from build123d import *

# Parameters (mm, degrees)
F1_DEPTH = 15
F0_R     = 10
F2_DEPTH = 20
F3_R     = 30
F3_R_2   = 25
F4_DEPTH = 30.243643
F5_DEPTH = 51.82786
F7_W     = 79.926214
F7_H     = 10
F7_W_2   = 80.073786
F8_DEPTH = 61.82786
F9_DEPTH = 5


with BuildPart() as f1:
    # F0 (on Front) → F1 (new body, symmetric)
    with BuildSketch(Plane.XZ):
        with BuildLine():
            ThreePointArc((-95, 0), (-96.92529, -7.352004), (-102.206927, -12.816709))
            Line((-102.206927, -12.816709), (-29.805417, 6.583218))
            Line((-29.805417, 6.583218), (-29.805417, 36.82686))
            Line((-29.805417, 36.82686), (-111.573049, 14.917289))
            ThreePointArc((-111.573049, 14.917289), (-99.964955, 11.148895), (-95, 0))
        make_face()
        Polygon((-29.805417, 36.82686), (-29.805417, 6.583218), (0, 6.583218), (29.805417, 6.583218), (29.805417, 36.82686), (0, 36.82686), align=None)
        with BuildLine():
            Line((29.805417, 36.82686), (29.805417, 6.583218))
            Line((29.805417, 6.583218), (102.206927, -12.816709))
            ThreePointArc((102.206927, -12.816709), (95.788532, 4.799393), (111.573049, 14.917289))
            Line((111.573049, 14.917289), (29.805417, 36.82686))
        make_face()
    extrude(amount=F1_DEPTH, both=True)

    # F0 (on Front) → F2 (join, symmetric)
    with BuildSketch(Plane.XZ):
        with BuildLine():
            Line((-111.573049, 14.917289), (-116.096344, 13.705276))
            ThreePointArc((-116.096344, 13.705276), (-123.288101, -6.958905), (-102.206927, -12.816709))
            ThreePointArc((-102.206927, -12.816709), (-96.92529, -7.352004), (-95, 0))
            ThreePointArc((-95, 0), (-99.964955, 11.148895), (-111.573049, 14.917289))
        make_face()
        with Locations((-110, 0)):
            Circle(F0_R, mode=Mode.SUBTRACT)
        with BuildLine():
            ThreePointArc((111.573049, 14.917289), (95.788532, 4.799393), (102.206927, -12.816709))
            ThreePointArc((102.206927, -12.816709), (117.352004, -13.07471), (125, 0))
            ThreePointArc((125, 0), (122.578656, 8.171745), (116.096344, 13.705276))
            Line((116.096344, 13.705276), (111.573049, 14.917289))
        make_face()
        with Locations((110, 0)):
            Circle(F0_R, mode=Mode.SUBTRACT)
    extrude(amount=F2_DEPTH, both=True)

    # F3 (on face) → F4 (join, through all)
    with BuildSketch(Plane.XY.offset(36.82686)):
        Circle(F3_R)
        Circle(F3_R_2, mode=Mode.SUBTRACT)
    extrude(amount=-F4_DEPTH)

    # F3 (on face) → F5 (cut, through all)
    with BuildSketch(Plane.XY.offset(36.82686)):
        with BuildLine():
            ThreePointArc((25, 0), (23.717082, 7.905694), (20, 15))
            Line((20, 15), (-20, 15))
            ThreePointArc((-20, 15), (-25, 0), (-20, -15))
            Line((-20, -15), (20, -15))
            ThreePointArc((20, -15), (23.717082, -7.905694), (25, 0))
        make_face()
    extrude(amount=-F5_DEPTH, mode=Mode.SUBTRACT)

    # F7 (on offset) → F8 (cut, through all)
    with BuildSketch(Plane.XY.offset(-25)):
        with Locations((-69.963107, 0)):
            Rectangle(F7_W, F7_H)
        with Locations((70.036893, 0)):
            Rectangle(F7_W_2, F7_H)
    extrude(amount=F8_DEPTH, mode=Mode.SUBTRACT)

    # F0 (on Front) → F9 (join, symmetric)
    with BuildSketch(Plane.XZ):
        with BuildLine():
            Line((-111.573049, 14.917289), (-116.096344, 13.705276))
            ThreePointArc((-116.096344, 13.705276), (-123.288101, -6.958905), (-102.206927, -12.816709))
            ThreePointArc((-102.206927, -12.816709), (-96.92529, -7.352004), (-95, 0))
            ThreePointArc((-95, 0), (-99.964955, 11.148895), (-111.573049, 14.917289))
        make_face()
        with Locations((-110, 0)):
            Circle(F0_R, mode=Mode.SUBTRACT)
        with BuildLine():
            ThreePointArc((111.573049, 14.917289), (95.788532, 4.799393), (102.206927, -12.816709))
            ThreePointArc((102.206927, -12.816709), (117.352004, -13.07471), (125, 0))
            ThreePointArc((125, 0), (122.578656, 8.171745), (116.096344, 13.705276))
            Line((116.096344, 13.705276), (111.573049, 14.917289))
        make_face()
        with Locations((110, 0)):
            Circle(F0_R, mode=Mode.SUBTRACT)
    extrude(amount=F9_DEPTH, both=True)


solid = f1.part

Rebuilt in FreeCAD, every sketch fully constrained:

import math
import FreeCAD as App
import Part
import Sketcher
from FreeCAD import Vector
Q = App.Units.Quantity


def add_polygon(sketch, points):
    """Adds a closed chain of lines whose ends are joined by coincident constraints."""
    first, n = sketch.GeometryCount, len(points)
    for a, b in zip(points, points[1:] + points[:1]):
        sketch.addGeometry(Part.LineSegment(App.Vector(*a, 0), App.Vector(*b, 0)), False)
    for i in range(n):
        sketch.addConstraint(Sketcher.Constraint("Coincident", first + i, 2, first + (i + 1) % n, 1))

doc = App.newDocument("Part")
body = doc.addObject("PartDesign::Body", "Body")

# Sketch on XZ plane
sketch1 = body.newObject("Sketcher::SketchObject", "Sketch")
sketch1.AttachmentSupport = (doc.getObject("XZ_Plane"), [""])
sketch1.MapMode = "FlatFace"
sketch1.addGeometry([
    Part.ArcOfCircle(Part.Circle(Vector(-110.000001, 0, 0), Vector(0, 0, 1), 15.000001), math.radians(-58.698718), math.radians(0)),  # 0
    Part.LineSegment(Vector(-102.206927, -12.816709, 0), Vector(-29.805417, 6.583218, 0)),  # 1
    Part.LineSegment(Vector(-29.805417, 6.583218, 0), Vector(29.805417, 6.583218, 0)),  # 2
    Part.LineSegment(Vector(29.805417, 6.583218, 0), Vector(102.206927, -12.816709, 0)),  # 3
    Part.ArcOfCircle(Part.Circle(Vector(110, 0, 0), Vector(0, 0, 1), 15), math.radians(83.980328), math.radians(238.698719)),  # 4
    Part.LineSegment(Vector(111.573049, 14.917289, 0), Vector(29.805417, 36.82686, 0)),  # 5
    Part.LineSegment(Vector(29.805417, 36.82686, 0), Vector(-29.805417, 36.82686, 0)),  # 6
    Part.LineSegment(Vector(-29.805417, 36.82686, 0), Vector(-111.573049, 14.917289, 0)),  # 7
    Part.ArcOfCircle(Part.Circle(Vector(-110.000001, -0.000001, 0), Vector(0, 0, 1), 15.000001), math.radians(0.000003), math.radians(96.019671)),  # 8
], False)
sketch1.addConstraint([
    Sketcher.Constraint("Coincident", 0, 1, 1, 1),
    Sketcher.Constraint("Coincident", 1, 2, 2, 1),
    Sketcher.Constraint("Coincident", 2, 2, 3, 1),
    Sketcher.Constraint("Coincident", 3, 2, 4, 2),
    Sketcher.Constraint("Coincident", 4, 1, 5, 1),
    Sketcher.Constraint("Coincident", 5, 2, 6, 1),
    Sketcher.Constraint("Coincident", 6, 2, 7, 1),
    Sketcher.Constraint("Coincident", 7, 2, 8, 2),
    Sketcher.Constraint("Tangent", 8, 1, 0, 2),
    Sketcher.Constraint("Horizontal", 2),
    Sketcher.Constraint("Horizontal", 6),
    Sketcher.Constraint("Equal", 0, 4),
    Sketcher.Constraint("Equal", 4, 8),
    Sketcher.Constraint("Symmetric", 0, 3, 4, 3, -1, 1),
    Sketcher.Constraint("Symmetric", 0, 1, 3, 2, -2),
    Sketcher.Constraint("PointOnObject", 8, 1, -1),
    Sketcher.Constraint("Parallel", 3, 5),
    Sketcher.Constraint("Parallel", 1, 7),
    Sketcher.Constraint("Horizontal", 4, 1, 7, 2),
    Sketcher.Constraint("Vertical", 2, 2, 5, 2),
    Sketcher.Constraint("Vertical", 1, 2, 6, 2),
    Sketcher.Constraint("Radius", 0, Q("15.000001 mm")),
    Sketcher.Constraint("Angle", 1, Q("15.000001 deg")),
    Sketcher.Constraint("DistanceX", 0, 3, -1, 1, Q("110.000001 mm")),
    Sketcher.Constraint("Distance", 1, Q("74.955559 mm")),
    Sketcher.Constraint("Distance", 5, Q("84.652082 mm")),
    Sketcher.Constraint("DistanceX", 2, 1, 2, 2, Q("59.610834 mm")),
])
pad1 = body.newObject("PartDesign::Pad", "Pad")
pad1.Profile = sketch1
pad1.Length = 30
pad1.Midplane = True

# Sketch on XZ plane
sketch2 = body.newObject("Sketcher::SketchObject", "Sketch001")
sketch2.AttachmentSupport = (doc.getObject("XZ_Plane"), [""])
sketch2.MapMode = "FlatFace"
sketch2.addGeometry([
    Part.LineSegment(Vector(-111.573049, 14.917289, 0), Vector(-116.096344, 13.705276, 0)),  # 0
    Part.ArcOfCircle(Part.Circle(Vector(-109.999999, 0, 0), Vector(0, 0, 1), 15), math.radians(113.980329), math.radians(301.301276)),  # 1
    Part.ArcOfCircle(Part.Circle(Vector(-110.000001, 0, 0), Vector(0, 0, 1), 15.000001), math.radians(-58.698718), math.radians(0)),  # 2
    Part.ArcOfCircle(Part.Circle(Vector(-110.000001, -0.000001, 0), Vector(0, 0, 1), 15.000001), math.radians(0.000003), math.radians(96.019671)),  # 3
    Part.Circle(Vector(-110, 0, 0), Vector(0, 0, 1), 10),  # 4
    Part.ArcOfCircle(Part.Circle(Vector(110, 0, 0), Vector(0, 0, 1), 15), math.radians(83.980328), math.radians(238.698719)),  # 5
    Part.ArcOfCircle(Part.Circle(Vector(110, 0, 0), Vector(0, 0, 1), 15), math.radians(-121.301277), math.radians(0)),  # 6
    Part.ArcOfCircle(Part.Circle(Vector(110, 0, 0), Vector(0, 0, 1), 15), math.radians(-0.000001), math.radians(66.019675)),  # 7
    Part.LineSegment(Vector(116.096344, 13.705276, 0), Vector(111.573049, 14.917289, 0)),  # 8
    Part.Circle(Vector(110, 0, 0), Vector(0, 0, 1), 10),  # 9
], False)
sketch2.addConstraint([
    Sketcher.Constraint("Coincident", 0, 2, 1, 1),
    Sketcher.Constraint("Tangent", 1, 2, 2, 1),
    Sketcher.Constraint("Tangent", 2, 2, 3, 1),
    Sketcher.Constraint("Coincident", 3, 2, 0, 1),
    Sketcher.Constraint("Tangent", 5, 2, 6, 1),
    Sketcher.Constraint("Tangent", 6, 2, 7, 1),
    Sketcher.Constraint("Coincident", 7, 2, 8, 1),
    Sketcher.Constraint("Coincident", 8, 2, 5, 1),
    Sketcher.Constraint("Coincident", 3, 3, 1, 3),
    Sketcher.Constraint("Coincident", 4, 3, 1, 3),
    Sketcher.Constraint("Coincident", 7, 3, 5, 3),
    Sketcher.Constraint("Coincident", 9, 3, 5, 3),
    Sketcher.Constraint("Equal", 3, 5),
    Sketcher.Constraint("Equal", 4, 9),
    Sketcher.Constraint("Symmetric", 1, 3, 5, 3, -1, 1),
    Sketcher.Constraint("Symmetric", 1, 2, 5, 2, -2),
    Sketcher.Constraint("PointOnObject", 2, 2, -1),
    Sketcher.Constraint("PointOnObject", 6, 2, -1),
    Sketcher.Constraint("Horizontal", 0, 2, 7, 2),
    Sketcher.Constraint("Horizontal", 3, 2, 8, 2),
    Sketcher.Constraint("Diameter", 4, Q("20 mm")),
    Sketcher.Constraint("Radius", 1, Q("15 mm")),
    Sketcher.Constraint("Angle", 0, Q("-165.000003 deg")),
    Sketcher.Constraint("DistanceX", 1, 3, -1, 1, Q("109.999999 mm")),
    Sketcher.Constraint("Distance", 0, Q("4.68286 mm")),
    Sketcher.Constraint("DistanceY", 1, 2, -1, 1, Q("12.816709 mm")),
])
pad2 = body.newObject("PartDesign::Pad", "Pad001")
pad2.Profile = sketch2
pad2.Length = 40
pad2.Midplane = True

# Sketch on XY plane
sketch3 = body.newObject("Sketcher::SketchObject", "Sketch002")
sketch3.AttachmentSupport = (doc.getObject("XY_Plane"), [""])
sketch3.MapMode = "FlatFace"
sketch3.AttachmentOffset = App.Placement(Vector(0, 0, 36.82686), App.Rotation())
sketch3.addGeometry([
    Part.Circle(Vector(0, 0, 0), Vector(0, 0, 1), 30),
    Part.Circle(Vector(0, 0, 0), Vector(0, 0, 1), 25),
], False)
sketch3.addConstraint([
    Sketcher.Constraint("Coincident", 0, 3, -1, 1),
    Sketcher.Constraint("Coincident", 1, 3, -1, 1),
    Sketcher.Constraint("Diameter", 0, Q("60 mm")),
    Sketcher.Constraint("Diameter", 1, Q("50 mm")),
])
pad3 = body.newObject("PartDesign::Pad", "Pad002")
pad3.Profile = sketch3
pad3.Type = "UpToLast"
pad3.Reversed = True

# Sketch on XY plane
sketch4 = body.newObject("Sketcher::SketchObject", "Sketch003")
sketch4.AttachmentSupport = (doc.getObject("XY_Plane"), [""])
sketch4.MapMode = "FlatFace"
sketch4.AttachmentOffset = App.Placement(Vector(0, 0, 36.82686), App.Rotation())
sketch4.addGeometry([
    Part.ArcOfCircle(Part.Circle(Vector(-0.000009, -0.000003, 0), Vector(0, 0, 1), 25.000009), math.radians(0.000007), math.radians(36.869891)),  # 0
    Part.LineSegment(Vector(20, 15, 0), Vector(-20, 15, 0)),  # 1
    Part.ArcOfCircle(Part.Circle(Vector(0, 0, 0), Vector(0, 0, 1), 25), math.radians(143.130102), math.radians(216.869898)),  # 2
    Part.LineSegment(Vector(-20, -15, 0), Vector(20, -15, 0)),  # 3
    Part.ArcOfCircle(Part.Circle(Vector(-0.000009, 0.000003, 0), Vector(0, 0, 1), 25.000009), math.radians(-36.869891), math.radians(-0.000007)),  # 4
], False)
sketch4.addConstraint([
    Sketcher.Constraint("Coincident", 0, 2, 1, 1),
    Sketcher.Constraint("Coincident", 1, 2, 2, 1),
    Sketcher.Constraint("Coincident", 2, 2, 3, 1),
    Sketcher.Constraint("Coincident", 3, 2, 4, 1),
    Sketcher.Constraint("Tangent", 4, 2, 0, 1),
    Sketcher.Constraint("Horizontal", 1),
    Sketcher.Constraint("Horizontal", 3),
    Sketcher.Constraint("Coincident", 0, 3, -1, 1),
    Sketcher.Constraint("Coincident", 2, 3, -1, 1),
    Sketcher.Constraint("Equal", 0, 4),
    Sketcher.Constraint("Symmetric", 0, 2, 2, 2, -1, 1),
    Sketcher.Constraint("PointOnObject", 4, 2, -1),
    Sketcher.Constraint("Radius", 2, Q("25 mm")),
    Sketcher.Constraint("DistanceX", 1, 2, 1, 1, Q("40 mm")),
])
pocket1 = body.newObject("PartDesign::Pocket", "Pocket")
pocket1.Profile = sketch4
pocket1.Type = "ThroughAll"

# Sketch on XY plane
sketch5 = body.newObject("Sketcher::SketchObject", "Sketch004")
sketch5.AttachmentSupport = (doc.getObject("XY_Plane"), [""])
sketch5.MapMode = "FlatFace"
sketch5.AttachmentOffset = App.Placement(Vector(0, 0, -25), App.Rotation())
add_polygon(sketch5, [(-109.926214, 5), (-109.926214, -5), (-30, -5), (-30, 5)])  # lines 0-3
add_polygon(sketch5, [(30, 5), (30, -5), (110.073786, -5), (110.073786, 5)])  # lines 4-7
sketch5.addConstraint([
    Sketcher.Constraint("Vertical", 0),
    Sketcher.Constraint("Horizontal", 1),
    Sketcher.Constraint("Vertical", 2),
    Sketcher.Constraint("Horizontal", 3),
    Sketcher.Constraint("Vertical", 4),
    Sketcher.Constraint("Horizontal", 5),
    Sketcher.Constraint("Vertical", 6),
    Sketcher.Constraint("Horizontal", 7),
    Sketcher.Constraint("Symmetric", 2, 2, 4, 2, -1, 1),
    Sketcher.Constraint("Horizontal", 1, 2, 4, 2),
    Sketcher.Constraint("Horizontal", 3, 2, 6, 2),
    Sketcher.Constraint("DistanceY", 0, 2, 0, 1, Q("10 mm")),
    Sketcher.Constraint("DistanceX", 1, 2, -1, 1, Q("30 mm")),
    Sketcher.Constraint("DistanceX", 0, 2, 5, 2, Q("220 mm")),
    Sketcher.Constraint("DistanceX", 1, 1, 1, 2, Q("79.926214 mm")),
])
pocket2 = body.newObject("PartDesign::Pocket", "Pocket001")
pocket2.Profile = sketch5
pocket2.Type = "ThroughAll"
pocket2.Reversed = True

# Sketch on XZ plane
sketch6 = body.newObject("Sketcher::SketchObject", "Sketch005")
sketch6.AttachmentSupport = (doc.getObject("XZ_Plane"), [""])
sketch6.MapMode = "FlatFace"
sketch6.addGeometry([
    Part.LineSegment(Vector(-111.573049, 14.917289, 0), Vector(-116.096344, 13.705276, 0)),  # 0
    Part.ArcOfCircle(Part.Circle(Vector(-109.999999, 0, 0), Vector(0, 0, 1), 15), math.radians(113.980329), math.radians(301.301276)),  # 1
    Part.ArcOfCircle(Part.Circle(Vector(-110.000001, 0, 0), Vector(0, 0, 1), 15.000001), math.radians(-58.698718), math.radians(0)),  # 2
    Part.ArcOfCircle(Part.Circle(Vector(-110.000001, -0.000001, 0), Vector(0, 0, 1), 15.000001), math.radians(0.000003), math.radians(96.019671)),  # 3
    Part.Circle(Vector(-110, 0, 0), Vector(0, 0, 1), 10),  # 4
    Part.ArcOfCircle(Part.Circle(Vector(110, 0, 0), Vector(0, 0, 1), 15), math.radians(83.980328), math.radians(238.698719)),  # 5
    Part.ArcOfCircle(Part.Circle(Vector(110, 0, 0), Vector(0, 0, 1), 15), math.radians(-121.301277), math.radians(0)),  # 6
    Part.ArcOfCircle(Part.Circle(Vector(110, 0, 0), Vector(0, 0, 1), 15), math.radians(-0.000001), math.radians(66.019675)),  # 7
    Part.LineSegment(Vector(116.096344, 13.705276, 0), Vector(111.573049, 14.917289, 0)),  # 8
    Part.Circle(Vector(110, 0, 0), Vector(0, 0, 1), 10),  # 9
], False)
sketch6.addConstraint([
    Sketcher.Constraint("Coincident", 0, 2, 1, 1),
    Sketcher.Constraint("Tangent", 1, 2, 2, 1),
    Sketcher.Constraint("Tangent", 2, 2, 3, 1),
    Sketcher.Constraint("Coincident", 3, 2, 0, 1),
    Sketcher.Constraint("Tangent", 5, 2, 6, 1),
    Sketcher.Constraint("Tangent", 6, 2, 7, 1),
    Sketcher.Constraint("Coincident", 7, 2, 8, 1),
    Sketcher.Constraint("Coincident", 8, 2, 5, 1),
    Sketcher.Constraint("Coincident", 3, 3, 1, 3),
    Sketcher.Constraint("Coincident", 4, 3, 1, 3),
    Sketcher.Constraint("Coincident", 7, 3, 5, 3),
    Sketcher.Constraint("Coincident", 9, 3, 5, 3),
    Sketcher.Constraint("Equal", 3, 5),
    Sketcher.Constraint("Equal", 4, 9),
    Sketcher.Constraint("Symmetric", 1, 3, 5, 3, -1, 1),
    Sketcher.Constraint("Symmetric", 1, 2, 5, 2, -2),
    Sketcher.Constraint("PointOnObject", 2, 2, -1),
    Sketcher.Constraint("PointOnObject", 6, 2, -1),
    Sketcher.Constraint("Horizontal", 0, 2, 7, 2),
    Sketcher.Constraint("Horizontal", 3, 2, 8, 2),
    Sketcher.Constraint("Diameter", 4, Q("20 mm")),
    Sketcher.Constraint("Radius", 1, Q("15 mm")),
    Sketcher.Constraint("Angle", 0, Q("-165.000003 deg")),
    Sketcher.Constraint("DistanceX", 1, 3, -1, 1, Q("109.999999 mm")),
    Sketcher.Constraint("Distance", 0, Q("4.68286 mm")),
    Sketcher.Constraint("DistanceY", 1, 2, -1, 1, Q("12.816709 mm")),
])
pad4 = body.newObject("PartDesign::Pad", "Pad003")
pad4.Profile = sketch6
pad4.Length = 10
pad4.Midplane = True

doc.recompute()
